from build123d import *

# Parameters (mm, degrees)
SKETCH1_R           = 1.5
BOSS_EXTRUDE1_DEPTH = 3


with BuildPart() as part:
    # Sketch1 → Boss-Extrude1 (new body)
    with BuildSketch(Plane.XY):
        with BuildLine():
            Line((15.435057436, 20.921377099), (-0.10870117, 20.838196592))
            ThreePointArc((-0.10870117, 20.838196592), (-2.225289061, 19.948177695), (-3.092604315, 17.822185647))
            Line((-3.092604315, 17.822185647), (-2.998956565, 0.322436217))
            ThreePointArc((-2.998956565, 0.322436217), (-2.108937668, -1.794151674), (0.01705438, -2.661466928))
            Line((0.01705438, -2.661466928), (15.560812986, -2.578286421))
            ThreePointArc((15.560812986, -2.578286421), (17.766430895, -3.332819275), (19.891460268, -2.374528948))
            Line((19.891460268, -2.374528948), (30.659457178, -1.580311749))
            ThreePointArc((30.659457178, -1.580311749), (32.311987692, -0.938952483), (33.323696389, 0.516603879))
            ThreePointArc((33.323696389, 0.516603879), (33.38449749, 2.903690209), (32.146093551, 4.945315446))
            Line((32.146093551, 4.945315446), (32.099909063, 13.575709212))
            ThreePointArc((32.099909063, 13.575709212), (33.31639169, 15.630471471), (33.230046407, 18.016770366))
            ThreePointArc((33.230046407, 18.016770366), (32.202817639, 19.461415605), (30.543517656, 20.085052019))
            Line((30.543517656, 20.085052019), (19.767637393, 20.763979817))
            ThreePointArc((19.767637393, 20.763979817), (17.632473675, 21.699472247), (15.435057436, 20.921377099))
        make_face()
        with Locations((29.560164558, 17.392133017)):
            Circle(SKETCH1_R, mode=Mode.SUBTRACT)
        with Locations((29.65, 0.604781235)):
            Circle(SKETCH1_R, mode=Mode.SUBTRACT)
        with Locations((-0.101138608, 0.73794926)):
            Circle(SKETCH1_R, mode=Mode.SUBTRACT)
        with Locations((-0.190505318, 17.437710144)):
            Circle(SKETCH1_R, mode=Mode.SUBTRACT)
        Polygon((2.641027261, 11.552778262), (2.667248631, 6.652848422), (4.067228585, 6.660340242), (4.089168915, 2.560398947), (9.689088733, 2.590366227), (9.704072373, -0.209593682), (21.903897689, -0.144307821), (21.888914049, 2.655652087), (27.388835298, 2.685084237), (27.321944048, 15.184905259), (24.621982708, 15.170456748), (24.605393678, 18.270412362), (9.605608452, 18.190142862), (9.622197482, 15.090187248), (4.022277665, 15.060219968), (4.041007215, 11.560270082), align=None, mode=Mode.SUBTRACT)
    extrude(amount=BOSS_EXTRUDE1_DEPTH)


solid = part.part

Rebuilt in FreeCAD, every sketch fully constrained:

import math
import FreeCAD as App
import Part
import Sketcher

V = App.Vector


def add_polygon(sketch, points):
    """Adds a closed chain of lines whose ends are joined by coincident constraints."""
    first, n = sketch.GeometryCount, len(points)
    for a, b in zip(points, points[1:] + points[:1]):
        sketch.addGeometry(Part.LineSegment(App.Vector(*a, 0), App.Vector(*b, 0)), False)
    for i in range(n):
        sketch.addConstraint(Sketcher.Constraint("Coincident", first + i, 2, first + (i + 1) % n, 1))

doc = App.newDocument("Part")
body = doc.addObject("PartDesign::Body", "Body")

sketch1 = body.newObject("Sketcher::SketchObject", "Sketch")
sketch1.AttachmentSupport = (doc.getObject("XY_Plane"), [""])
sketch1.MapMode = "FlatFace"
sketch1.addGeometry(Part.LineSegment(V(15.435057, 20.921377, 0), V(-0.108701, 20.838197, 0)), False)
sketch1.addGeometry(Part.ArcOfCircle(Part.Circle(V(-0.092647, 17.83824, 0), V(0, 0, 1), 3), math.radians(90.306608), math.radians(180.306608)), False)
sketch1.addGeometry(Part.LineSegment(V(-3.092604, 17.822186, 0), V(-2.998957, 0.322436, 0)), False)
sketch1.addGeometry(Part.ArcOfCircle(Part.Circle(V(0.001, 0.33849, 0), V(0, 0, 1), 3), math.radians(-179.693392), math.radians(-89.693392)), False)
sketch1.addGeometry(Part.LineSegment(V(0.017054, -2.661467, 0), V(15.560813, -2.578286, 0)), False)
sketch1.addGeometry(Part.ArcOfCircle(Part.Circle(V(17.61749, -0.167246, 0), V(0, 0, 1), 3.169075), math.radians(-130.465001), math.radians(-44.147425)), False)
sketch1.addGeometry(Part.LineSegment(V(19.89146, -2.374529, 0), V(30.659457, -1.580312, 0)), False)
sketch1.addGeometry(Part.ArcOfCircle(Part.Circle(V(30.436385, 1.444097, 0), V(0, 0, 1), 3.032624), math.radians(-85.781663), math.radians(-17.808613)), False)
sketch1.addGeometry(Part.ArcOfCircle(Part.Circle(V(29.285564, 1.813776, 0), V(0, 0, 1), 4.241364), math.radians(-17.808613), math.radians(47.589615)), False)
sketch1.addGeometry(Part.LineSegment(V(32.146094, 4.945315, 0), V(32.099909, 13.575709, 0)), False)
sketch1.addGeometry(Part.ArcOfCircle(Part.Circle(V(29.206028, 16.676455, 0), V(0, 0, 1), 4.241364), math.radians(-46.976398), math.radians(18.42183)), False)
sketch1.addGeometry(Part.ArcOfCircle(Part.Circle(V(30.352827, 17.058429, 0), V(0, 0, 1), 3.032624), math.radians(18.42183), math.radians(86.394879)), False)
sketch1.addGeometry(Part.LineSegment(V(30.543518, 20.085052, 0), V(19.767637, 20.76398, 0)), False)
sketch1.addGeometry(Part.ArcOfCircle(Part.Circle(V(17.517421, 18.532486, 0), V(0, 0, 1), 3.169075), math.radians(44.760642), math.radians(131.078218)), False)
sketch1.addGeometry(Part.Circle(V(-0.101139, 0.737949, 0), V(0, 0, 1), 1.5), False)
sketch1.addGeometry(Part.Circle(V(29.65, 0.604781, 0), V(0, 0, 1), 1.5), False)
sketch1.addGeometry(Part.Circle(V(-0.190505, 17.43771, 0), V(0, 0, 1), 1.5), False)
add_polygon(sketch1, [(2.667249, 6.652848), (2.641027, 11.552778), (4.041007, 11.56027), (4.022278, 15.06022), (9.622197, 15.090187), (9.605608, 18.190143), (24.605394, 18.270412), (24.621983, 15.170457), (27.321944, 15.184905), (27.388835, 2.685084), (21.888914, 2.655652), (21.903898, -0.144308), (9.704072, -0.209594), (9.689089, 2.590366), (4.089169, 2.560399), (4.067229, 6.66034)])
sketch1.addGeometry(Part.Circle(V(29.560165, 17.392133, 0), V(0, 0, 1), 1.5), False)
sketch1.addConstraint([
    Sketcher.Constraint("Tangent", 0, 2, 1, 1),
    Sketcher.Constraint("Tangent", 1, 2, 2, 1),
    Sketcher.Constraint("Tangent", 2, 2, 3, 1),
    Sketcher.Constraint("Tangent", 3, 2, 4, 1),
    Sketcher.Constraint("Coincident", 4, 2, 5, 1),
    Sketcher.Constraint("Coincident", 5, 2, 6, 1),
    Sketcher.Constraint("Tangent", 6, 2, 7, 1),
    Sketcher.Constraint("Tangent", 7, 2, 8, 1),
    Sketcher.Constraint("Coincident", 8, 2, 9, 1),
    Sketcher.Constraint("Coincident", 9, 2, 10, 1),
    Sketcher.Constraint("Tangent", 10, 2, 11, 1),
    Sketcher.Constraint("Tangent", 11, 2, 12, 1),
    Sketcher.Constraint("Coincident", 12, 2, 13, 1),
    Sketcher.Constraint("Coincident", 13, 2, 0, 1),
    Sketcher.Constraint("Equal", 1, 3),
    Sketcher.Constraint("Equal", 8, 10),
    Sketcher.Constraint("Equal", 7, 11),
    Sketcher.Constraint("Equal", 5, 13),
    Sketcher.Constraint("Equal", 14, 15),
    Sketcher.Constraint("Equal", 15, 16),
    Sketcher.Constraint("Equal", 16, 33),
    Sketcher.Constraint("Perpendicular", 0, 2),
    Sketcher.Constraint("Perpendicular", 2, 4),
    Sketcher.Constraint("Perpendicular", 4, 9),
    Sketcher.Constraint("Parallel", 9, 17),
    Sketcher.Constraint("Perpendicular", 17, 18),
    Sketcher.Constraint("Perpendicular", 18, 19),
    Sketcher.Constraint("Perpendicular", 19, 20),
    Sketcher.Constraint("Perpendicular", 20, 21),
    Sketcher.Constraint("Perpendicular", 21, 22),
    Sketcher.Constraint("Perpendicular", 22, 23),
    Sketcher.Constraint("Perpendicular", 23, 24),
    Sketcher.Constraint("Perpendicular", 24, 25),
    Sketcher.Constraint("Perpendicular", 25, 26),
    Sketcher.Constraint("Perpendicular", 26, 27),
    Sketcher.Constraint("Perpendicular", 27, 28),
    Sketcher.Constraint("Perpendicular", 28, 29),
    Sketcher.Constraint("Perpendicular", 29, 30),
    Sketcher.Constraint("Perpendicular", 30, 31),
    Sketcher.Constraint("Perpendicular", 31, 32),
    Sketcher.Constraint("Equal", 0, 4),
    Sketcher.Constraint("Equal", 6, 12),
    Sketcher.Constraint("Equal", 21, 23),
    Sketcher.Constraint("Equal", 27, 29),
    Sketcher.Constraint("Equal", 20, 30),
    Sketcher.Constraint("Equal", 18, 32),
    Sketcher.Constraint("Diameter", 14, 3.0),
    Sketcher.Constraint("Radius", 1, 3.0),
    Sketcher.Constraint("Distance", 22, 15.0),
    Sketcher.Constraint("Distance", 2, 17.5),
    Sketcher.Constraint("Distance", 17, 4.9),
    Sketcher.Constraint("Distance", 18, 1.4),
    Sketcher.Constraint("Distance", 19, 3.5),
    Sketcher.Constraint("Distance", 20, 5.6),
    Sketcher.Constraint("Distance", 21, 3.1),
    Sketcher.Constraint("Distance", 24, 2.7),
    Sketcher.Constraint("Distance", 25, 12.5),
    Sketcher.Constraint("Distance", 26, 5.5),
    Sketcher.Constraint("Distance", 27, 2.8),
    Sketcher.Constraint("DistanceX", -1, 1, 15, 3, 29.65),
    Sketcher.Constraint("DistanceX", -1, 1, 3, 3, 0.001),
    Sketcher.Constraint("Radius", 5, 3.169075),
    Sketcher.Constraint("Radius", 7, 3.032624),
    Sketcher.Constraint("Radius", 8, 4.241364),
    Sketcher.Constraint("DistanceX", 0, 2, -1, 1, 0.108701),
    Sketcher.Constraint("DistanceY", -1, 1, 30, 2, 2.560399),
    Sketcher.Constraint("DistanceY", 5, 3, 10, 3, 16.843701),
    Sketcher.Constraint("DistanceX", 10, 3, 11, 3, 1.146799),
    Sketcher.Constraint("DistanceX", 8, 3, 33, 3, 0.2746),
    Sketcher.Constraint("DistanceX", 1, 2, 16, 3, 2.902099),
    Sketcher.Constraint("DistanceY", 20, 2, 13, 3, 3.442299),
    Sketcher.Constraint("DistanceY", 5, 3, 26, 2, 2.822898),
    Sketcher.Constraint("DistanceX", 29, 2, 5, 3, 7.928402),
    Sketcher.Constraint("DistanceY", 14, 3, 32, 2, 5.914899),
    Sketcher.Constraint("Distance", 0, 15.543981),
    Sketcher.Constraint("DistanceY", -1, 1, 1, 3, 17.83824),
    Sketcher.Constraint("DistanceX", -1, 1, 10, 3, 29.206028),
    Sketcher.Constraint("DistanceX", 14, 3, -1, 1, 0.101139),
    Sketcher.Constraint("DistanceY", -1, 1, 15, 3, 0.604781),
    Sketcher.Constraint("DistanceY", -1, 1, 16, 3, 17.43771),
    Sketcher.Constraint("DistanceX", -1, 1, 5, 2, 19.89146),
    Sketcher.Constraint("DistanceY", 6, 2, -1, 1, 1.580312),
    Sketcher.Constraint("DistanceX", -1, 1, 9, 2, 32.099909),
    Sketcher.Constraint("DistanceY", -1, 1, 12, 2, 20.76398),
    Sketcher.Constraint("DistanceX", 8, 3, 7, 3, 1.150821),
    Sketcher.Constraint("DistanceY", 10, 3, 33, 3, 0.715678),
])
pad1 = body.newObject("PartDesign::Pad", "Pad")
pad1.Profile = sketch1
pad1.Length = 3

doc.recompute()
